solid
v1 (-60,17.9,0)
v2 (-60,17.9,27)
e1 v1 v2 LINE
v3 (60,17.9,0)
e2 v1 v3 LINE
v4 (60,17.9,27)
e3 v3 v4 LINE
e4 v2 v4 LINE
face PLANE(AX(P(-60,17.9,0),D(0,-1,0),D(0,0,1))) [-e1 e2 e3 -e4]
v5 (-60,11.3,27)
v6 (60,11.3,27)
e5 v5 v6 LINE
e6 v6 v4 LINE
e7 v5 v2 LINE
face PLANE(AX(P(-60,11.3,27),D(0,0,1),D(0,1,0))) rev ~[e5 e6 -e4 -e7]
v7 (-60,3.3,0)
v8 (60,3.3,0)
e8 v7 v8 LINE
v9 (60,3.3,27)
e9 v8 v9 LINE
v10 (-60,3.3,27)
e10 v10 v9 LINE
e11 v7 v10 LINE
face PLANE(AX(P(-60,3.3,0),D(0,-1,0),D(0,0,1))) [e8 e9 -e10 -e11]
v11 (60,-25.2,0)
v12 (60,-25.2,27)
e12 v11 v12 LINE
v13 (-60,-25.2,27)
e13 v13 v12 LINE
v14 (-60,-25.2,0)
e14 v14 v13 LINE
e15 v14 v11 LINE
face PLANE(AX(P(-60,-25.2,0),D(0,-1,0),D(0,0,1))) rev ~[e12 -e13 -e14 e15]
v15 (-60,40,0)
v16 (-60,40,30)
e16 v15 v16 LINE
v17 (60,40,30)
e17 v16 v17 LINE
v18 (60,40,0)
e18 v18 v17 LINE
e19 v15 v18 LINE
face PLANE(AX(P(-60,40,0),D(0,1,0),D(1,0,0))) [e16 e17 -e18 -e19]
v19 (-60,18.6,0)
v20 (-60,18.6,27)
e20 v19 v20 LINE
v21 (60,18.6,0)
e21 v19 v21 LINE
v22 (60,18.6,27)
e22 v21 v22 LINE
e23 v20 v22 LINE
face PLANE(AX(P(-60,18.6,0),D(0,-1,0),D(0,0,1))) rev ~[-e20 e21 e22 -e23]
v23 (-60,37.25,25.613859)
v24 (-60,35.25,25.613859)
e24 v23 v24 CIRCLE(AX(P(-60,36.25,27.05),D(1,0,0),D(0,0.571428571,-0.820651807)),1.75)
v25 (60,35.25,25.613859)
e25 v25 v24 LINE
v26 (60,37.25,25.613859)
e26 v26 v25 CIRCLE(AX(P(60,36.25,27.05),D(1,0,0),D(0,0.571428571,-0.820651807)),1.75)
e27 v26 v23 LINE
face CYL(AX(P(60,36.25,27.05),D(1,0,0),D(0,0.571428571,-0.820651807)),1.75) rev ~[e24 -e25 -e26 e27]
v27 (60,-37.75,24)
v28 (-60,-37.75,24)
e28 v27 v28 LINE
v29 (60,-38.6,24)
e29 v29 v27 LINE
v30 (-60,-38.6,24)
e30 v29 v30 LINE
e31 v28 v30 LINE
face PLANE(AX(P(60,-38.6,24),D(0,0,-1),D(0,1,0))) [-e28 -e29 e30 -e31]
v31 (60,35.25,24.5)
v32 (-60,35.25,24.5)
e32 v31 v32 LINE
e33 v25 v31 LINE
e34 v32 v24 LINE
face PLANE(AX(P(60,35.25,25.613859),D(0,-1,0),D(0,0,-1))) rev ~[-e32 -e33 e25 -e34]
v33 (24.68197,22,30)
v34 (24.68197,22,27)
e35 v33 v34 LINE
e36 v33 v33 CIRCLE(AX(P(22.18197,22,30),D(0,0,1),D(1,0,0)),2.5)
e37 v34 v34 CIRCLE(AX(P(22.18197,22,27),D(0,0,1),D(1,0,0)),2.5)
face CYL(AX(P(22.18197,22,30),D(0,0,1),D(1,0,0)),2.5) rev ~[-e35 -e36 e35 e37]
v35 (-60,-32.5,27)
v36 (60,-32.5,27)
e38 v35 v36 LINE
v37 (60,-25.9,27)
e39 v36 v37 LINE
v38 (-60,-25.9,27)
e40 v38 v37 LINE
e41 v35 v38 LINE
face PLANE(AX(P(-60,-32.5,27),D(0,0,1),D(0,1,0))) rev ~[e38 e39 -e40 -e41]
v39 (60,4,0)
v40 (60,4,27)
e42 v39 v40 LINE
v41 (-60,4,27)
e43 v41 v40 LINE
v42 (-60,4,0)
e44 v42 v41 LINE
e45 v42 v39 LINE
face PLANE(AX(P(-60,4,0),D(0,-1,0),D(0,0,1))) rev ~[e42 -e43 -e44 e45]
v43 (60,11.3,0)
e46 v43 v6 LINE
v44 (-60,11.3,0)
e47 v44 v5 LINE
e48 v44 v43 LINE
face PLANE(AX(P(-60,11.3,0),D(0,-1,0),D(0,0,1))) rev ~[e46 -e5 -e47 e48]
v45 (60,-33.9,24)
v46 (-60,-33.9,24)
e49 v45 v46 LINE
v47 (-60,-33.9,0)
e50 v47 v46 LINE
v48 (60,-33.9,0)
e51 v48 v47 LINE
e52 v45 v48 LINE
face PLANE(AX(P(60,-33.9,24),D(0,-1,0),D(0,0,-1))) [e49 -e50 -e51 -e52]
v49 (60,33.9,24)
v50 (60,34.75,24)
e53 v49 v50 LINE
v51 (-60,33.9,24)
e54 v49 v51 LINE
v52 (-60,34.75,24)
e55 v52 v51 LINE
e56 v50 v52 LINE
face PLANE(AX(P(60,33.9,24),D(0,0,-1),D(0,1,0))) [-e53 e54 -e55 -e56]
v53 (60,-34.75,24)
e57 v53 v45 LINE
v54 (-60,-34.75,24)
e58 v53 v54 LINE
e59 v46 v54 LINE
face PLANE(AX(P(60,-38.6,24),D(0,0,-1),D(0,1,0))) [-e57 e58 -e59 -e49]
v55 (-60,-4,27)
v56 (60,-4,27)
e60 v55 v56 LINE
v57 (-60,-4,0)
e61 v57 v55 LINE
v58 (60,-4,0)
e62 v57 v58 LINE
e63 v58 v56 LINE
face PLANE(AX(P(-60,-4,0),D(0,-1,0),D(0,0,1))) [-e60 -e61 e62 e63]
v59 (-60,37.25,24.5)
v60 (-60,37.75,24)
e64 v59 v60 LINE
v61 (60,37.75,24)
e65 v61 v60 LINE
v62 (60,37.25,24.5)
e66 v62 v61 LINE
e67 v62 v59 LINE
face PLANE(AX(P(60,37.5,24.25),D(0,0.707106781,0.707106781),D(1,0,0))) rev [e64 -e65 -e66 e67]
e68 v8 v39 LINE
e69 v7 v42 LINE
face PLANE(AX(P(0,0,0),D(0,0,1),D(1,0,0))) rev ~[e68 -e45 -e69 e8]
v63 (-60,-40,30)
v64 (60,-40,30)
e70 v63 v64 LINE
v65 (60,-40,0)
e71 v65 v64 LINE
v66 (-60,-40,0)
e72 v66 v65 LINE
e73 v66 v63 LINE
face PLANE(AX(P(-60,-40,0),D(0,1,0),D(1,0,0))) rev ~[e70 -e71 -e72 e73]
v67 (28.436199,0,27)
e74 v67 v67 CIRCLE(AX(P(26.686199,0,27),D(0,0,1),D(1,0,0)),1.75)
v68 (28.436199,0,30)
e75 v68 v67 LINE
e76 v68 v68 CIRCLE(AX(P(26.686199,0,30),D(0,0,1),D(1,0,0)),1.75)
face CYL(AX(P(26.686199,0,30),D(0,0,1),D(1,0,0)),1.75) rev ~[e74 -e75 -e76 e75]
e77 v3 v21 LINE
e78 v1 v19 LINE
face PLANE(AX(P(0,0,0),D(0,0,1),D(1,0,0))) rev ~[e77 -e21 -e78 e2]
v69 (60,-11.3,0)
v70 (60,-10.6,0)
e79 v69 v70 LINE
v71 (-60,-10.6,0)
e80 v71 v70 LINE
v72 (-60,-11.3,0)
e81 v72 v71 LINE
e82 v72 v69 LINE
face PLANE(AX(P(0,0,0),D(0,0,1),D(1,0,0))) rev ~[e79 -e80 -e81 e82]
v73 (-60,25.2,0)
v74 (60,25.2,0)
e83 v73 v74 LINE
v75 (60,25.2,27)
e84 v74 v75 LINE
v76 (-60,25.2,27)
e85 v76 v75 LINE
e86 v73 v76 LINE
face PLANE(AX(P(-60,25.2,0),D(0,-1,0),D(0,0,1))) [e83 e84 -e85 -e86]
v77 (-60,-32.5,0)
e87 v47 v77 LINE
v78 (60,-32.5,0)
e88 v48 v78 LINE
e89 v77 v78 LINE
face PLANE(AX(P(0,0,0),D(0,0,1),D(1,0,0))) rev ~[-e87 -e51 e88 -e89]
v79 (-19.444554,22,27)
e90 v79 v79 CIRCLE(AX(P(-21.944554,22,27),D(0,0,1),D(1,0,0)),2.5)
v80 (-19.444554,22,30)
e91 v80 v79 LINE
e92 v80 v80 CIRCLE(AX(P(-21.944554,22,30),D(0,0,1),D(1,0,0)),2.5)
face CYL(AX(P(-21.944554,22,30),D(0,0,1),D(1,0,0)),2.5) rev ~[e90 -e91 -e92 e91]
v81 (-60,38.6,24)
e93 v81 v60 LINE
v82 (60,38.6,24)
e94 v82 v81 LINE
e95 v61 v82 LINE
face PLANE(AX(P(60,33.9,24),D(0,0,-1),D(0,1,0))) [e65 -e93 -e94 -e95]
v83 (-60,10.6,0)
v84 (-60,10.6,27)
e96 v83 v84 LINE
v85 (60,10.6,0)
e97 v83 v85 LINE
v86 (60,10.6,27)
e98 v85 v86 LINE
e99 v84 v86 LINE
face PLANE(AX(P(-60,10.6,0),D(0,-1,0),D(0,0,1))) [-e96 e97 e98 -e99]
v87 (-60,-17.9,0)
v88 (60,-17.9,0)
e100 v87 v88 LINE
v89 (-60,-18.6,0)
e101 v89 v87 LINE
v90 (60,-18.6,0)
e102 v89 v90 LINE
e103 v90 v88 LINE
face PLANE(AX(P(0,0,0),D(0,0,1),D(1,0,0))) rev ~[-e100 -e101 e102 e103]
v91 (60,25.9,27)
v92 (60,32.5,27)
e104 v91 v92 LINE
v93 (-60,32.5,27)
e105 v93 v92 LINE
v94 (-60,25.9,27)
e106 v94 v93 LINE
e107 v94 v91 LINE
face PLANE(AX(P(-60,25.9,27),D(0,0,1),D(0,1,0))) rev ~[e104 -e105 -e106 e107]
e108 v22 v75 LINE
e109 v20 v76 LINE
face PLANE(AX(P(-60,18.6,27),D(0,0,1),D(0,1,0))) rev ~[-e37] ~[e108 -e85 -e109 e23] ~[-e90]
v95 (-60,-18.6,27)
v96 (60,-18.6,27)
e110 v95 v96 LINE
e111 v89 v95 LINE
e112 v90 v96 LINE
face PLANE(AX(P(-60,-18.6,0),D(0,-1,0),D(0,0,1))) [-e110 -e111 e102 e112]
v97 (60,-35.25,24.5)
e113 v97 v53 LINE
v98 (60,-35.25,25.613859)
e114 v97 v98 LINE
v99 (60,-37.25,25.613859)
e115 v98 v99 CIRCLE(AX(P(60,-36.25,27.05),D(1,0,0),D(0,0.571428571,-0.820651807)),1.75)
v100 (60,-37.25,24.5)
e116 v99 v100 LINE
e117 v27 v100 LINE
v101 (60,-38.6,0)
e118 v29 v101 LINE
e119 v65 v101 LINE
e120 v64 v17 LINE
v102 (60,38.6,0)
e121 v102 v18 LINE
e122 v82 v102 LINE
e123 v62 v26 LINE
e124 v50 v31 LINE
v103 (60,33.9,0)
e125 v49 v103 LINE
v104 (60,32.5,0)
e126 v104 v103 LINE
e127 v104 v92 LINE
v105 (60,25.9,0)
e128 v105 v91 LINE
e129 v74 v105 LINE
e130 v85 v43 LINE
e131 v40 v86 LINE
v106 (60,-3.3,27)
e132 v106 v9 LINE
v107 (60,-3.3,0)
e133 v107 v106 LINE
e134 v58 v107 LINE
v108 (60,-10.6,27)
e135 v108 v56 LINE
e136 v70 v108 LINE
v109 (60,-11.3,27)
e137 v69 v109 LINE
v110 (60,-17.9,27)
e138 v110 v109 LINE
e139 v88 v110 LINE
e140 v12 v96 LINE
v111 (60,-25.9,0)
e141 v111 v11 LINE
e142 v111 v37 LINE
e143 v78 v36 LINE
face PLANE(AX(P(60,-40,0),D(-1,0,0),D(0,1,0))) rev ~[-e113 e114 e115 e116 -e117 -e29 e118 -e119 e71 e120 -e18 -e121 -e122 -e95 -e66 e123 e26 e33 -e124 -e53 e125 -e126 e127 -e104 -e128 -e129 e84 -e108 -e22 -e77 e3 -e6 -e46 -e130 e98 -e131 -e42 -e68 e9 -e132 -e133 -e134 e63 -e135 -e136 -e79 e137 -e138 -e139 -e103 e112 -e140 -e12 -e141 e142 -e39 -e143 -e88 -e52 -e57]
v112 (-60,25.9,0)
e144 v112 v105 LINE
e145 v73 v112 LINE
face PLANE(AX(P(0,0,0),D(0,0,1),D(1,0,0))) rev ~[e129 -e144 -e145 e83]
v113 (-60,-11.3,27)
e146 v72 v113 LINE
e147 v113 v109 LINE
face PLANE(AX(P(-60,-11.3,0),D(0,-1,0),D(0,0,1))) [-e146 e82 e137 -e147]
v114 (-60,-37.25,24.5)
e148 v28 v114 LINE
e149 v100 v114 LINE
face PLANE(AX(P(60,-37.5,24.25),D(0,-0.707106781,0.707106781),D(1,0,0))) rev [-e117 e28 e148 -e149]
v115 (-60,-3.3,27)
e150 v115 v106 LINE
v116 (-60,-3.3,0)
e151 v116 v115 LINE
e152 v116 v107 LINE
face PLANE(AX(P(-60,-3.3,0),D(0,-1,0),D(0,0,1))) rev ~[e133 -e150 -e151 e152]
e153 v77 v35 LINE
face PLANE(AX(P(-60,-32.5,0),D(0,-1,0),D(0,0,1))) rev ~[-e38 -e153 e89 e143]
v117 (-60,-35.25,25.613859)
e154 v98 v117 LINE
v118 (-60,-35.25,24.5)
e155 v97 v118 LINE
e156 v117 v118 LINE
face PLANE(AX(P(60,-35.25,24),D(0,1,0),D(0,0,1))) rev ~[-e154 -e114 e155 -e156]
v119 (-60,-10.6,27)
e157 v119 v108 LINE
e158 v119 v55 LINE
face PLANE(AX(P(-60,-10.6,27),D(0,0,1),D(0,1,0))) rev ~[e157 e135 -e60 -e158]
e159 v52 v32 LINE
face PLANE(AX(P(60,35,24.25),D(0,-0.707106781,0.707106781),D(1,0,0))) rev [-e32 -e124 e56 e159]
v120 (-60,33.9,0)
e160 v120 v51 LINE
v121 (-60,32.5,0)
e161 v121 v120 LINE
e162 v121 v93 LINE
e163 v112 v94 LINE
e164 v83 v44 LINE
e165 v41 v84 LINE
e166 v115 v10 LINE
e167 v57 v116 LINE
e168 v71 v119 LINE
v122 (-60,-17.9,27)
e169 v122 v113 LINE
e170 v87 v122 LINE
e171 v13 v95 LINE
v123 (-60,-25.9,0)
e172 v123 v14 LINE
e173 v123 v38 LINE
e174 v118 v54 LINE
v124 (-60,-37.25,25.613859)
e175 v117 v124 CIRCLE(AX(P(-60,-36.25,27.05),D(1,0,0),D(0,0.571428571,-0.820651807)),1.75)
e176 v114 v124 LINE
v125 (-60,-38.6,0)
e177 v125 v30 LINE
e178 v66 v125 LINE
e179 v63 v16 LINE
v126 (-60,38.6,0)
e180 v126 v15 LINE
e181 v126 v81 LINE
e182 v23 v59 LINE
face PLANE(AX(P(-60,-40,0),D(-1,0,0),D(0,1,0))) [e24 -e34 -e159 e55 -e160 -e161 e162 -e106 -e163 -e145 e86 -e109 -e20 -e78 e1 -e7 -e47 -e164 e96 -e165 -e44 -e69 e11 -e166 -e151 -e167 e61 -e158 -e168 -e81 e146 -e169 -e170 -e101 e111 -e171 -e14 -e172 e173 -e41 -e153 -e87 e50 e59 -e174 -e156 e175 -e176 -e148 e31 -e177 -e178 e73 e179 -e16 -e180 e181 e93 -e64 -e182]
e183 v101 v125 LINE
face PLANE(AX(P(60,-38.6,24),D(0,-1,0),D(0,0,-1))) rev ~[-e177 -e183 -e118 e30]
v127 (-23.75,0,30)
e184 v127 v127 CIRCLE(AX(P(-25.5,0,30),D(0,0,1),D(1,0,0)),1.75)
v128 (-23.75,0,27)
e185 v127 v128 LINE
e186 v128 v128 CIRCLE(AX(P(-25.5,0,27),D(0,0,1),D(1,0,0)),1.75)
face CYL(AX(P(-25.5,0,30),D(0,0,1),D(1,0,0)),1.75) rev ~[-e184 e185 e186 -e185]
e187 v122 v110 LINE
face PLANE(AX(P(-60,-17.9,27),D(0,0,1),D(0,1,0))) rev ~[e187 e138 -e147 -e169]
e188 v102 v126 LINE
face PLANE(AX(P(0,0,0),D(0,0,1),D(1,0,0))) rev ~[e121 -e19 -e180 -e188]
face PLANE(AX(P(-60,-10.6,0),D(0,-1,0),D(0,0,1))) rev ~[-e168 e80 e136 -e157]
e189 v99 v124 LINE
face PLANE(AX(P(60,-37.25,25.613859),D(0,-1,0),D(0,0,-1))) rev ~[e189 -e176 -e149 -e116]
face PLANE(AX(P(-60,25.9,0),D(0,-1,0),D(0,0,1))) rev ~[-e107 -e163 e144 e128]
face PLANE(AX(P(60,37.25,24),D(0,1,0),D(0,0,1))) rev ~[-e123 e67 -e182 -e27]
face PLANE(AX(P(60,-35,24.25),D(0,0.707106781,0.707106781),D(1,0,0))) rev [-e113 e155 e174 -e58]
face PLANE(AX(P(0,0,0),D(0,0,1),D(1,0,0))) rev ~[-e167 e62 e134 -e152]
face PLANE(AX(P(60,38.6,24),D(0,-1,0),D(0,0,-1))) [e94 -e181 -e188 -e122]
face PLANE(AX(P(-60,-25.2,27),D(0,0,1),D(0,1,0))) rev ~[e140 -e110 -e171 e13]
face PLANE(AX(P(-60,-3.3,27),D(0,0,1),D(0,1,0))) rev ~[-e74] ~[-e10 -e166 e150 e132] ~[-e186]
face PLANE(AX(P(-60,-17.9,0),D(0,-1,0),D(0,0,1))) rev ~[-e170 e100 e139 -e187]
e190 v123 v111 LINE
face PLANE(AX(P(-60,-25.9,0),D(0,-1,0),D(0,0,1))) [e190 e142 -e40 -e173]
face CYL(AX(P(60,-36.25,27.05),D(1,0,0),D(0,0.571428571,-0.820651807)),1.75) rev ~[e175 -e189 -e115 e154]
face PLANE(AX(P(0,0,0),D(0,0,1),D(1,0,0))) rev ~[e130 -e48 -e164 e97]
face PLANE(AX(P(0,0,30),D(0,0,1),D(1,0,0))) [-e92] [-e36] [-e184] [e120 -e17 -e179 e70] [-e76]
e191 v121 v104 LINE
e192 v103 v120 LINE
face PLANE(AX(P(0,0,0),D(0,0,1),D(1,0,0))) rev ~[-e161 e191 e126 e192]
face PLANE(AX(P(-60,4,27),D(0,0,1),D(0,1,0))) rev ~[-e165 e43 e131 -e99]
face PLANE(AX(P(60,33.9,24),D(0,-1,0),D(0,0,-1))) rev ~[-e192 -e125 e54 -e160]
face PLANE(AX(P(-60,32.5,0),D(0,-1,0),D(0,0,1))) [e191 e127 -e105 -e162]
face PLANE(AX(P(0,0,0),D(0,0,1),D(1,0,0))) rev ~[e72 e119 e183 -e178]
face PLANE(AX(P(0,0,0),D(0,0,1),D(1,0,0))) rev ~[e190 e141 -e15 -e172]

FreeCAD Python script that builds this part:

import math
import FreeCAD as App
import Part
import Sketcher
Q = App.Units.Quantity


def edges_at(feature, points):
    """Names of the edges that pass closest to the given points."""
    edges = feature.Shape.Edges
    near = lambda p: min(range(len(edges)), key=lambda i: edges[i].distToShape(Part.Vertex(*p))[0])
    return sorted({f"Edge{near(p) + 1}" for p in points})

doc = App.newDocument("Part")
body = doc.addObject("PartDesign::Body", "Body")

sketch1 = body.newObject("Sketcher::SketchObject", "Sketch")
sketch1.AttachmentSupport = (doc.getObject("XY_Plane"), [""])
sketch1.MapMode = "FlatFace"
sketch1.addGeometry([
    Part.LineSegment(App.Vector(-60, 40, 0), App.Vector(-60, -40, 0)),
    Part.LineSegment(App.Vector(-60, -40, 0), App.Vector(60, -40, 0)),
    Part.LineSegment(App.Vector(60, -40, 0), App.Vector(60, 40, 0)),
    Part.LineSegment(App.Vector(60, 40, 0), App.Vector(-60, 40, 0)),
], False)
sketch1.addConstraint([
    Sketcher.Constraint("Coincident", 0, 2, 1, 1),
    Sketcher.Constraint("Coincident", 1, 2, 2, 1),
    Sketcher.Constraint("Coincident", 2, 2, 3, 1),
    Sketcher.Constraint("Coincident", 3, 2, 0, 1),
    Sketcher.Constraint("Vertical", 0),
    Sketcher.Constraint("Horizontal", 1),
    Sketcher.Constraint("Vertical", 2),
    Sketcher.Constraint("Horizontal", 3),
    Sketcher.Constraint("Symmetric", 0, 2, 2, 2, -1, 1),
    Sketcher.Constraint("DistanceX", 1, 1, 1, 2, Q("120 mm")),
    Sketcher.Constraint("DistanceY", 0, 2, 0, 1, Q("80 mm")),
])
pad1 = body.newObject("PartDesign::Pad", "Pad")
pad1.Profile = sketch1
pad1.Length = 30

sketch2 = body.newObject("Sketcher::SketchObject", "Sketch001")
sketch2.AttachmentSupport = (doc.getObject("YZ_Plane"), [""])
sketch2.MapMode = "FlatFace"
sketch2.AttachmentOffset = App.Placement(App.Vector(0, 0, -60), App.Rotation())
sketch2.addGeometry([
    Part.LineSegment(App.Vector(-26, 0, 0), App.Vector(-32, 0, 0)),
    Part.LineSegment(App.Vector(-32, 0, 0), App.Vector(-32, 27, 0)),
    Part.LineSegment(App.Vector(-32, 27, 0), App.Vector(-26, 27, 0)),
    Part.LineSegment(App.Vector(-26, 27, 0), App.Vector(-26, 0, 0)),
], False)
sketch2.addConstraint([
    Sketcher.Constraint("Coincident", 0, 2, 1, 1),
    Sketcher.Constraint("Coincident", 1, 2, 2, 1),
    Sketcher.Constraint("Coincident", 2, 2, 3, 1),
    Sketcher.Constraint("Coincident", 3, 2, 0, 1),
    Sketcher.Constraint("Horizontal", 0),
    Sketcher.Constraint("Vertical", 1),
    Sketcher.Constraint("Horizontal", 2),
    Sketcher.Constraint("Vertical", 3),
    Sketcher.Constraint("PointOnObject", 0, 2, -1),
    Sketcher.Constraint("DistanceY", 1, 1, 1, 2, Q("27 mm")),
    Sketcher.Constraint("DistanceX", 0, 2, 0, 1, Q("6.6 mm")),
    Sketcher.Constraint("DistanceX", 0, 2, -1, 1, Q("32.5 mm")),
])
pocket1 = body.newObject("PartDesign::Pocket", "Pocket")
pocket1.Profile = sketch2
pocket1.Type = "ThroughAll"
pocket1.Reversed = True
doc.recompute()

linearpattern = body.newObject("PartDesign::LinearPattern", "LinearPattern")
linearpattern.Originals = [pocket1]
linearpattern.Direction = (doc.getObject("Y_Axis"), [""])
linearpattern.Mode = "offset"
linearpattern.Offset = 7.3
linearpattern.Occurrences = 9
body.Tip = linearpattern

sketch3 = body.newObject("Sketcher::SketchObject", "Sketch002")
sketch3.AttachmentSupport = (doc.getObject("YZ_Plane"), [""])
sketch3.MapMode = "FlatFace"
sketch3.AttachmentOffset = App.Placement(App.Vector(0, 0, 60), App.Rotation())
sketch3.addGeometry([
    Part.LineSegment(App.Vector(-33.9, 24, 0), App.Vector(-38.6, 24, 0)),
    Part.LineSegment(App.Vector(-38.6, 24, 0), App.Vector(-38.6, 0, 0)),
    Part.LineSegment(App.Vector(-38.6, 0, 0), App.Vector(-33.9, 0, 0)),
    Part.LineSegment(App.Vector(-33.9, 0, 0), App.Vector(-33.9, 24, 0)),
    Part.LineSegment(App.Vector(38.6, 24, 0), App.Vector(33.9, 24, 0)),
    Part.LineSegment(App.Vector(33.9, 24, 0), App.Vector(33.9, 0, 0)),
    Part.LineSegment(App.Vector(33.9, 0, 0), App.Vector(38.6, 0, 0)),
    Part.LineSegment(App.Vector(38.6, 0, 0), App.Vector(38.6, 24, 0)),
], False)
sketch3.addConstraint([
    Sketcher.Constraint("Coincident", 0, 2, 1, 1),
    Sketcher.Constraint("Coincident", 1, 2, 2, 1),
    Sketcher.Constraint("Coincident", 2, 2, 3, 1),
    Sketcher.Constraint("Coincident", 3, 2, 0, 1),
    Sketcher.Constraint("Coincident", 4, 2, 5, 1),
    Sketcher.Constraint("Coincident", 5, 2, 6, 1),
    Sketcher.Constraint("Coincident", 6, 2, 7, 1),
    Sketcher.Constraint("Coincident", 7, 2, 4, 1),
    Sketcher.Constraint("Horizontal", 0),
    Sketcher.Constraint("Vertical", 1),
    Sketcher.Constraint("Horizontal", 2),
    Sketcher.Constraint("Vertical", 3),
    Sketcher.Constraint("Horizontal", 4),
    Sketcher.Constraint("Vertical", 5),
    Sketcher.Constraint("Horizontal", 6),
    Sketcher.Constraint("Vertical", 7),
    Sketcher.Constraint("Symmetric", 2, 2, 5, 2, -1, 1),
    Sketcher.Constraint("Symmetric", 1, 2, 6, 2, -2),
    Sketcher.Constraint("Horizontal", 3, 2, 4, 2),
    Sketcher.Constraint("DistanceY", 1, 2, 1, 1, Q("24 mm")),
    Sketcher.Constraint("DistanceX", 0, 2, 0, 1, Q("4.7 mm")),
    Sketcher.Constraint("DistanceX", 0, 2, -1, 1, Q("38.6 mm")),
])
pocket2 = body.newObject("PartDesign::Pocket", "Pocket001")
pocket2.Profile = sketch3
pocket2.Type = "ThroughAll"

sketch4 = body.newObject("Sketcher::SketchObject", "Sketch003")
sketch4.AttachmentSupport = (doc.getObject("YZ_Plane"), [""])
sketch4.MapMode = "FlatFace"
sketch4.AttachmentOffset = App.Placement(App.Vector(0, 0, 60), App.Rotation())
sketch4.addGeometry([
    Part.LineSegment(App.Vector(37.2, 24, 0), App.Vector(37.2, 25.6, 0)),
    Part.ArcOfCircle(Part.Circle(App.Vector(36.2, 27.1, 0), App.Vector(0, 0, 1), 1.8), math.radians(-55), math.radians(235)),
    Part.LineSegment(App.Vector(35.2, 25.6, 0), App.Vector(35.2, 24, 0)),
    Part.LineSegment(App.Vector(35.2, 24, 0), App.Vector(37.2, 24, 0)),
    Part.ArcOfCircle(Part.Circle(App.Vector(-36.2, 27.1, 0), App.Vector(0, 0, 1), 1.8), math.radians(-55), math.radians(235)),
    Part.LineSegment(App.Vector(-37.2, 25.6, 0), App.Vector(-37.2, 24, 0)),
    Part.LineSegment(App.Vector(-37.2, 24, 0), App.Vector(-35.2, 24, 0)),
    Part.LineSegment(App.Vector(-35.2, 24, 0), App.Vector(-35.2, 25.6, 0)),
], False)
sketch4.addConstraint([
    Sketcher.Constraint("Coincident", 0, 2, 1, 1),
    Sketcher.Constraint("Coincident", 1, 2, 2, 1),
    Sketcher.Constraint("Coincident", 2, 2, 3, 1),
    Sketcher.Constraint("Coincident", 3, 2, 0, 1),
    Sketcher.Constraint("Coincident", 4, 2, 5, 1),
    Sketcher.Constraint("Coincident", 5, 2, 6, 1),
    Sketcher.Constraint("Coincident", 6, 2, 7, 1),
    Sketcher.Constraint("Coincident", 7, 2, 4, 1),
    Sketcher.Constraint("Vertical", 0),
    Sketcher.Constraint("Vertical", 2),
    Sketcher.Constraint("Horizontal", 3),
    Sketcher.Constraint("Vertical", 5),
    Sketcher.Constraint("Horizontal", 6),
    Sketcher.Constraint("Vertical", 7),
    Sketcher.Constraint("Equal", 1, 4),
    Sketcher.Constraint("Symmetric", 1, 3, 4, 3, -2),
    Sketcher.Constraint("Symmetric", 3, 2, 5, 2, -2),
    Sketcher.Constraint("Horizontal", 0, 2, 1, 2),
    Sketcher.Constraint("Horizontal", 4, 2, 7, 2),
    Sketcher.Constraint("DistanceX", 3, 1, 3, 2, Q("2 mm")),
    Sketcher.Constraint("Radius", 1, Q("1.75 mm")),
    Sketcher.Constraint("DistanceY", -1, 1, 2, 2, Q("24 mm")),
    Sketcher.Constraint("DistanceX", 4, 3, 1, 3, Q("72.5 mm")),
    Sketcher.Constraint("DistanceY", -1, 1, 1, 3, Q("27.05 mm")),
])
pocket3 = body.newObject("PartDesign::Pocket", "Pocket002")
pocket3.Profile = sketch4
pocket3.Type = "ThroughAll"
doc.recompute()

chamfer = body.newObject("PartDesign::Chamfer", "Chamfer")
chamfer.Base = (pocket3, edges_at(pocket3, [
    (0, 37.25, 24),
    (0, 35.25, 24),
    (0, -35.25, 24),
    (0, -37.25, 24),
]))
chamfer.Size = 0.5

sketch5 = body.newObject("Sketcher::SketchObject", "Sketch004")
sketch5.AttachmentSupport = (doc.getObject("XY_Plane"), [""])
sketch5.MapMode = "FlatFace"
sketch5.AttachmentOffset = App.Placement(App.Vector(0, 0, 30), App.Rotation())
sketch5.addGeometry([
    Part.Circle(App.Vector(-25.5, 0, 0), App.Vector(0, 0, 1), 1.8),
    Part.Circle(App.Vector(26.7, 0, 0), App.Vector(0, 0, 1), 1.8),
    Part.Circle(App.Vector(-21.9, 22, 0), App.Vector(0, 0, 1), 2.5),
    Part.Circle(App.Vector(22.2, 22, 0), App.Vector(0, 0, 1), 2.5),
], False)
sketch5.addConstraint([
    Sketcher.Constraint("Equal", 0, 1),
    Sketcher.Constraint("Equal", 2, 3),
    Sketcher.Constraint("PointOnObject", 0, 3, -1),
    Sketcher.Constraint("PointOnObject", 1, 3, -1),
    Sketcher.Constraint("Horizontal", 2, 3, 3, 3),
    Sketcher.Constraint("Diameter", 2, Q("5 mm")),
    Sketcher.Constraint("Diameter", 0, Q("3.5 mm")),
    Sketcher.Constraint("DistanceY", -1, 1, 2, 3, Q("22 mm")),
    Sketcher.Constraint("DistanceX", 0, 3, -1, 1, Q("25.5 mm")),
    Sketcher.Constraint("DistanceX", -1, 1, 1, 3, Q("26.686199 mm")),
    Sketcher.Constraint("DistanceX", -1, 1, 3, 3, Q("22.18197 mm")),
    Sketcher.Constraint("DistanceX", 2, 3, -1, 1, Q("21.944554 mm")),
])
pocket4 = body.newObject("PartDesign::Pocket", "Pocket003")
pocket4.Profile = sketch5
pocket4.Length = 10

doc.recompute()
